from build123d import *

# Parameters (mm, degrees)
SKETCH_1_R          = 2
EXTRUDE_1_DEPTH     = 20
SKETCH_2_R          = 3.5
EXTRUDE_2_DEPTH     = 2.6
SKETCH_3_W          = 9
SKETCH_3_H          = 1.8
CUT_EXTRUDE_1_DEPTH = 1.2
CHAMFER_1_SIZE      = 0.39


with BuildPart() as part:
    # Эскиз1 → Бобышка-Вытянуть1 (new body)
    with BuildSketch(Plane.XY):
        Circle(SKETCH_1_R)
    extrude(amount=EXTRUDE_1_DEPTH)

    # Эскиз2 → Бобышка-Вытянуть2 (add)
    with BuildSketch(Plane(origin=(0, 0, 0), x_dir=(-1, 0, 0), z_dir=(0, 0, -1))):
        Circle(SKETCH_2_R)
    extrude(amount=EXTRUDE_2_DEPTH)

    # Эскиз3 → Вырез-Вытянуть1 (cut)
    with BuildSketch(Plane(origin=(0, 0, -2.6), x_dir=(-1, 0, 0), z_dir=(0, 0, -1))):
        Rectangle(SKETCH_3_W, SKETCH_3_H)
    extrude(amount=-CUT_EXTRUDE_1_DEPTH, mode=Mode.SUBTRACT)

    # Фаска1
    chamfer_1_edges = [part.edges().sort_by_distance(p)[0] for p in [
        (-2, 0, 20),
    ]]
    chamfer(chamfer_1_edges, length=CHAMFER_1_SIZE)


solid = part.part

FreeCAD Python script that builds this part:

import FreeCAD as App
import Part
import Sketcher
from FreeCAD import Vector
Q = App.Units.Quantity


def edges_at(feature, points):
    """Names of the edges that pass closest to the given points."""
    edges = feature.Shape.Edges
    near = lambda p: min(range(len(edges)), key=lambda i: edges[i].distToShape(Part.Vertex(*p))[0])
    return sorted({f"Edge{near(p) + 1}" for p in points})


def add_polygon(sketch, points):
    """Adds a closed chain of lines whose ends are joined by coincident constraints."""
    first, n = sketch.GeometryCount, len(points)
    for a, b in zip(points, points[1:] + points[:1]):
        sketch.addGeometry(Part.LineSegment(App.Vector(*a, 0), App.Vector(*b, 0)), False)
    for i in range(n):
        sketch.addConstraint(Sketcher.Constraint("Coincident", first + i, 2, first + (i + 1) % n, 1))

doc = App.newDocument("Part")
params = doc.addObject("Spreadsheet::Sheet", "Params")
for row, (alias, value) in enumerate([
    ("sketch1_diameter", "4 mm"),
    ("pad1_length", "20 mm"),
    ("sketch2_diameter", "7 mm"),
    ("pad2_length", "2.6 mm"),
    ("sketch3_width", "9 mm"),
    ("sketch3_height", "1.8 mm"),
    ("pocket1_length", "1.2 mm"),
    ("chamfer_size", "0.39 mm"),
], start=1):
    params.set(f"A{row}", alias)
    params.set(f"B{row}", "=" + value)
    params.setAlias(f"B{row}", alias)

body = doc.addObject("PartDesign::Body", "Body")

# Sketch on XY plane
sketch1 = doc.addObject("Sketcher::SketchObject", "Sketch")
body.addObject(sketch1)
sketch1.AttachmentSupport = (doc.XY_Plane, [""])
sketch1.MapMode = "FlatFace"
sketch1.addGeometry(Part.Circle(Vector(0, 0, 0), Vector(0, 0, 1), 2), False)
sketch1.addConstraint(Sketcher.Constraint("Coincident", 0, 3, -1, 1))
sketch1.addConstraint(Sketcher.Constraint("Diameter", 0, Q("4 mm")))
sketch1.setExpression("Constraints[1]", "Params.sketch1_diameter")
pad1 = doc.addObject("PartDesign::Pad", "Pad")
body.addObject(pad1)
pad1.Profile = sketch1
pad1.setExpression("Length", "Params.pad1_length")

# Sketch on XY plane
sketch2 = doc.addObject("Sketcher::SketchObject", "Sketch001")
body.addObject(sketch2)
sketch2.AttachmentSupport = (doc.XY_Plane, [""])
sketch2.MapMode = "FlatFace"
sketch2.addGeometry(Part.Circle(Vector(0, 0, 0), Vector(0, 0, 1), 3.5), False)
sketch2.addConstraint(Sketcher.Constraint("Coincident", 0, 3, -1, 1))
sketch2.addConstraint(Sketcher.Constraint("Diameter", 0, Q("7 mm")))
sketch2.setExpression("Constraints[1]", "Params.sketch2_diameter")
pad2 = doc.addObject("PartDesign::Pad", "Pad001")
body.addObject(pad2)
pad2.Profile = sketch2
pad2.setExpression("Length", "Params.pad2_length")
pad2.Reversed = True

# Sketch on XY plane
sketch3 = doc.addObject("Sketcher::SketchObject", "Sketch002")
body.addObject(sketch3)
sketch3.AttachmentSupport = (doc.XY_Plane, [""])
sketch3.MapMode = "FlatFace"
sketch3.AttachmentOffset = App.Placement(Vector(0, 0, -2.6), App.Rotation())
add_polygon(sketch3, [(4.5, 0.9), (4.5, -0.9), (-4.5, -0.9), (-4.5, 0.9)])  # lines 0-3
sketch3.addConstraint(Sketcher.Constraint("Vertical", 0))
sketch3.addConstraint(Sketcher.Constraint("Horizontal", 1))
sketch3.addConstraint(Sketcher.Constraint("Vertical", 2))
sketch3.addConstraint(Sketcher.Constraint("Horizontal", 3))
sketch3.addConstraint(Sketcher.Constraint("Symmetric", 0, 2, 2, 2, -1, 1))
sketch3.addConstraint(Sketcher.Constraint("DistanceX", 1, 2, 1, 1, Q("9 mm")))
sketch3.addConstraint(Sketcher.Constraint("DistanceY", 0, 2, 0, 1, Q("1.8 mm")))
sketch3.setExpression("Constraints[9]", "Params.sketch3_width")
sketch3.setExpression("Constraints[10]", "Params.sketch3_height")
pocket1 = doc.addObject("PartDesign::Pocket", "Pocket")
body.addObject(pocket1)
pocket1.Profile = sketch3
pocket1.setExpression("Length", "Params.pocket1_length")
pocket1.Reversed = True
doc.recompute()

chamfer = doc.addObject("PartDesign::Chamfer", "Chamfer")
body.addObject(chamfer)
chamfer.Base = (pocket1, edges_at(pocket1, [(-2, 0, 20)]))
chamfer.setExpression("Size", "Params.chamfer_size")

doc.recompute()
